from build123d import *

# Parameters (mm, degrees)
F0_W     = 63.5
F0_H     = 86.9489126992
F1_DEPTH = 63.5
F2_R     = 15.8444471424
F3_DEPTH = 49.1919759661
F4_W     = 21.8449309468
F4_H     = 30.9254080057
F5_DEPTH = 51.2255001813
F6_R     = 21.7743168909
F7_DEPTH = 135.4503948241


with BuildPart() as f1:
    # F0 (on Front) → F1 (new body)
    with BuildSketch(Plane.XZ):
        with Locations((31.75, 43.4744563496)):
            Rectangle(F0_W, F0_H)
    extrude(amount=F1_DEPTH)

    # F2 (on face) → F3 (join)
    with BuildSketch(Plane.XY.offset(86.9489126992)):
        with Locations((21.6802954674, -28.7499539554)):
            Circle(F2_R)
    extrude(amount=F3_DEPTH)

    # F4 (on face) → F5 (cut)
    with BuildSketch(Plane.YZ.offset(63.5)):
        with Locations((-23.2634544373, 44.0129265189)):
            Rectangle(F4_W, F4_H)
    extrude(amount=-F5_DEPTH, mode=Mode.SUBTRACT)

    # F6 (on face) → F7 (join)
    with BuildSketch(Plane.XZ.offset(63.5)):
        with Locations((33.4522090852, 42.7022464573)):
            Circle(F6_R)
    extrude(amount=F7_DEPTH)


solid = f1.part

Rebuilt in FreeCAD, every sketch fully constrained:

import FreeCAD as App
import Part
import Sketcher
from FreeCAD import Vector
Q = App.Units.Quantity

doc = App.newDocument("Part")
body = doc.addObject("PartDesign::Body", "Body")

# Sketch on XZ plane
sketch1 = body.newObject("Sketcher::SketchObject", "Sketch")
sketch1.AttachmentSupport = (doc.getObject("XZ_Plane"), [""])
sketch1.MapMode = "FlatFace"
sketch1.addGeometry(Part.LineSegment(Vector(0, 87, 0), Vector(0, 0, 0)), False)
sketch1.addGeometry(Part.LineSegment(Vector(0, 0, 0), Vector(64, 0, 0)), False)
sketch1.addGeometry(Part.LineSegment(Vector(64, 0, 0), Vector(64, 87, 0)), False)
sketch1.addGeometry(Part.LineSegment(Vector(64, 87, 0), Vector(0, 87, 0)), False)
sketch1.addConstraint(Sketcher.Constraint("Coincident", 0, 2, 1, 1))
sketch1.addConstraint(Sketcher.Constraint("Coincident", 1, 2, 2, 1))
sketch1.addConstraint(Sketcher.Constraint("Coincident", 2, 2, 3, 1))
sketch1.addConstraint(Sketcher.Constraint("Coincident", 3, 2, 0, 1))
sketch1.addConstraint(Sketcher.Constraint("Vertical", 0))
sketch1.addConstraint(Sketcher.Constraint("Horizontal", 1))
sketch1.addConstraint(Sketcher.Constraint("Vertical", 2))
sketch1.addConstraint(Sketcher.Constraint("Horizontal", 3))
sketch1.addConstraint(Sketcher.Constraint("Coincident", 0, 2, -1, 1))
sketch1.addConstraint(Sketcher.Constraint("DistanceX", 1, 1, 1, 2, Q("2.5 in")))
sketch1.addConstraint(Sketcher.Constraint("DistanceY", 0, 2, 0, 1, 86.948913))
pad1 = body.newObject("PartDesign::Pad", "Pad")
pad1.Profile = sketch1
pad1.Length = Q("2.5 in")

# Sketch on XY plane
sketch2 = body.newObject("Sketcher::SketchObject", "Sketch001")
sketch2.AttachmentSupport = (doc.getObject("XY_Plane"), [""])
sketch2.MapMode = "FlatFace"
sketch2.AttachmentOffset = App.Placement(Vector(0, 0, 86.948913), App.Rotation())
sketch2.addGeometry(Part.Circle(Vector(22, -29, 0), Vector(0, 0, 1), 16), False)
sketch2.addConstraint(Sketcher.Constraint("Diameter", 0, 31.688894))
sketch2.addConstraint(Sketcher.Constraint("DistanceX", -1, 1, 0, 3, 21.680295))
sketch2.addConstraint(Sketcher.Constraint("DistanceY", 0, 3, -1, 1, 28.749954))
pad2 = body.newObject("PartDesign::Pad", "Pad001")
pad2.Profile = sketch2
pad2.Length = 49.191976

# Sketch on YZ plane
sketch3 = body.newObject("Sketcher::SketchObject", "Sketch002")
sketch3.AttachmentSupport = (doc.getObject("YZ_Plane"), [""])
sketch3.MapMode = "FlatFace"
sketch3.AttachmentOffset = App.Placement(Vector(0, 0, 2.5 * 25.4), App.Rotation())
sketch3.addGeometry(Part.LineSegment(Vector(-34, 59, 0), Vector(-34, 29, 0)), False)
sketch3.addGeometry(Part.LineSegment(Vector(-34, 29, 0), Vector(-12, 29, 0)), False)
sketch3.addGeometry(Part.LineSegment(Vector(-12, 29, 0), Vector(-12, 59, 0)), False)
sketch3.addGeometry(Part.LineSegment(Vector(-12, 59, 0), Vector(-34, 59, 0)), False)
sketch3.addConstraint(Sketcher.Constraint("Coincident", 0, 2, 1, 1))
sketch3.addConstraint(Sketcher.Constraint("Coincident", 1, 2, 2, 1))
sketch3.addConstraint(Sketcher.Constraint("Coincident", 2, 2, 3, 1))
sketch3.addConstraint(Sketcher.Constraint("Coincident", 3, 2, 0, 1))
sketch3.addConstraint(Sketcher.Constraint("Vertical", 0))
sketch3.addConstraint(Sketcher.Constraint("Horizontal", 1))
sketch3.addConstraint(Sketcher.Constraint("Vertical", 2))
sketch3.addConstraint(Sketcher.Constraint("Horizontal", 3))
sketch3.addConstraint(Sketcher.Constraint("DistanceX", 1, 1, 1, 2, 21.844931))
sketch3.addConstraint(Sketcher.Constraint("DistanceY", 0, 2, 0, 1, 30.925408))
sketch3.addConstraint(Sketcher.Constraint("DistanceX", 0, 2, -1, 1, 34.18592))
sketch3.addConstraint(Sketcher.Constraint("DistanceY", -1, 1, 2, 2, 59.475631))
pocket1 = body.newObject("PartDesign::Pocket", "Pocket")
pocket1.Profile = sketch3
pocket1.Length = 51.2255

# Sketch on XZ plane
sketch4 = body.newObject("Sketcher::SketchObject", "Sketch003")
sketch4.AttachmentSupport = (doc.getObject("XZ_Plane"), [""])
sketch4.MapMode = "FlatFace"
sketch4.AttachmentOffset = App.Placement(Vector(0, 0, 2.5 * 25.4), App.Rotation())
sketch4.addGeometry(Part.Circle(Vector(33, 43, 0), Vector(0, 0, 1), 22), False)
sketch4.addConstraint(Sketcher.Constraint("Diameter", 0, 43.548634))
sketch4.addConstraint(Sketcher.Constraint("DistanceX", -1, 1, 0, 3, 33.452209))
sketch4.addConstraint(Sketcher.Constraint("DistanceY", -1, 1, 0, 3, 42.702246))
pad3 = body.newObject("PartDesign::Pad", "Pad002")
pad3.Profile = sketch4
pad3.Length = 135.450395

doc.recompute()
